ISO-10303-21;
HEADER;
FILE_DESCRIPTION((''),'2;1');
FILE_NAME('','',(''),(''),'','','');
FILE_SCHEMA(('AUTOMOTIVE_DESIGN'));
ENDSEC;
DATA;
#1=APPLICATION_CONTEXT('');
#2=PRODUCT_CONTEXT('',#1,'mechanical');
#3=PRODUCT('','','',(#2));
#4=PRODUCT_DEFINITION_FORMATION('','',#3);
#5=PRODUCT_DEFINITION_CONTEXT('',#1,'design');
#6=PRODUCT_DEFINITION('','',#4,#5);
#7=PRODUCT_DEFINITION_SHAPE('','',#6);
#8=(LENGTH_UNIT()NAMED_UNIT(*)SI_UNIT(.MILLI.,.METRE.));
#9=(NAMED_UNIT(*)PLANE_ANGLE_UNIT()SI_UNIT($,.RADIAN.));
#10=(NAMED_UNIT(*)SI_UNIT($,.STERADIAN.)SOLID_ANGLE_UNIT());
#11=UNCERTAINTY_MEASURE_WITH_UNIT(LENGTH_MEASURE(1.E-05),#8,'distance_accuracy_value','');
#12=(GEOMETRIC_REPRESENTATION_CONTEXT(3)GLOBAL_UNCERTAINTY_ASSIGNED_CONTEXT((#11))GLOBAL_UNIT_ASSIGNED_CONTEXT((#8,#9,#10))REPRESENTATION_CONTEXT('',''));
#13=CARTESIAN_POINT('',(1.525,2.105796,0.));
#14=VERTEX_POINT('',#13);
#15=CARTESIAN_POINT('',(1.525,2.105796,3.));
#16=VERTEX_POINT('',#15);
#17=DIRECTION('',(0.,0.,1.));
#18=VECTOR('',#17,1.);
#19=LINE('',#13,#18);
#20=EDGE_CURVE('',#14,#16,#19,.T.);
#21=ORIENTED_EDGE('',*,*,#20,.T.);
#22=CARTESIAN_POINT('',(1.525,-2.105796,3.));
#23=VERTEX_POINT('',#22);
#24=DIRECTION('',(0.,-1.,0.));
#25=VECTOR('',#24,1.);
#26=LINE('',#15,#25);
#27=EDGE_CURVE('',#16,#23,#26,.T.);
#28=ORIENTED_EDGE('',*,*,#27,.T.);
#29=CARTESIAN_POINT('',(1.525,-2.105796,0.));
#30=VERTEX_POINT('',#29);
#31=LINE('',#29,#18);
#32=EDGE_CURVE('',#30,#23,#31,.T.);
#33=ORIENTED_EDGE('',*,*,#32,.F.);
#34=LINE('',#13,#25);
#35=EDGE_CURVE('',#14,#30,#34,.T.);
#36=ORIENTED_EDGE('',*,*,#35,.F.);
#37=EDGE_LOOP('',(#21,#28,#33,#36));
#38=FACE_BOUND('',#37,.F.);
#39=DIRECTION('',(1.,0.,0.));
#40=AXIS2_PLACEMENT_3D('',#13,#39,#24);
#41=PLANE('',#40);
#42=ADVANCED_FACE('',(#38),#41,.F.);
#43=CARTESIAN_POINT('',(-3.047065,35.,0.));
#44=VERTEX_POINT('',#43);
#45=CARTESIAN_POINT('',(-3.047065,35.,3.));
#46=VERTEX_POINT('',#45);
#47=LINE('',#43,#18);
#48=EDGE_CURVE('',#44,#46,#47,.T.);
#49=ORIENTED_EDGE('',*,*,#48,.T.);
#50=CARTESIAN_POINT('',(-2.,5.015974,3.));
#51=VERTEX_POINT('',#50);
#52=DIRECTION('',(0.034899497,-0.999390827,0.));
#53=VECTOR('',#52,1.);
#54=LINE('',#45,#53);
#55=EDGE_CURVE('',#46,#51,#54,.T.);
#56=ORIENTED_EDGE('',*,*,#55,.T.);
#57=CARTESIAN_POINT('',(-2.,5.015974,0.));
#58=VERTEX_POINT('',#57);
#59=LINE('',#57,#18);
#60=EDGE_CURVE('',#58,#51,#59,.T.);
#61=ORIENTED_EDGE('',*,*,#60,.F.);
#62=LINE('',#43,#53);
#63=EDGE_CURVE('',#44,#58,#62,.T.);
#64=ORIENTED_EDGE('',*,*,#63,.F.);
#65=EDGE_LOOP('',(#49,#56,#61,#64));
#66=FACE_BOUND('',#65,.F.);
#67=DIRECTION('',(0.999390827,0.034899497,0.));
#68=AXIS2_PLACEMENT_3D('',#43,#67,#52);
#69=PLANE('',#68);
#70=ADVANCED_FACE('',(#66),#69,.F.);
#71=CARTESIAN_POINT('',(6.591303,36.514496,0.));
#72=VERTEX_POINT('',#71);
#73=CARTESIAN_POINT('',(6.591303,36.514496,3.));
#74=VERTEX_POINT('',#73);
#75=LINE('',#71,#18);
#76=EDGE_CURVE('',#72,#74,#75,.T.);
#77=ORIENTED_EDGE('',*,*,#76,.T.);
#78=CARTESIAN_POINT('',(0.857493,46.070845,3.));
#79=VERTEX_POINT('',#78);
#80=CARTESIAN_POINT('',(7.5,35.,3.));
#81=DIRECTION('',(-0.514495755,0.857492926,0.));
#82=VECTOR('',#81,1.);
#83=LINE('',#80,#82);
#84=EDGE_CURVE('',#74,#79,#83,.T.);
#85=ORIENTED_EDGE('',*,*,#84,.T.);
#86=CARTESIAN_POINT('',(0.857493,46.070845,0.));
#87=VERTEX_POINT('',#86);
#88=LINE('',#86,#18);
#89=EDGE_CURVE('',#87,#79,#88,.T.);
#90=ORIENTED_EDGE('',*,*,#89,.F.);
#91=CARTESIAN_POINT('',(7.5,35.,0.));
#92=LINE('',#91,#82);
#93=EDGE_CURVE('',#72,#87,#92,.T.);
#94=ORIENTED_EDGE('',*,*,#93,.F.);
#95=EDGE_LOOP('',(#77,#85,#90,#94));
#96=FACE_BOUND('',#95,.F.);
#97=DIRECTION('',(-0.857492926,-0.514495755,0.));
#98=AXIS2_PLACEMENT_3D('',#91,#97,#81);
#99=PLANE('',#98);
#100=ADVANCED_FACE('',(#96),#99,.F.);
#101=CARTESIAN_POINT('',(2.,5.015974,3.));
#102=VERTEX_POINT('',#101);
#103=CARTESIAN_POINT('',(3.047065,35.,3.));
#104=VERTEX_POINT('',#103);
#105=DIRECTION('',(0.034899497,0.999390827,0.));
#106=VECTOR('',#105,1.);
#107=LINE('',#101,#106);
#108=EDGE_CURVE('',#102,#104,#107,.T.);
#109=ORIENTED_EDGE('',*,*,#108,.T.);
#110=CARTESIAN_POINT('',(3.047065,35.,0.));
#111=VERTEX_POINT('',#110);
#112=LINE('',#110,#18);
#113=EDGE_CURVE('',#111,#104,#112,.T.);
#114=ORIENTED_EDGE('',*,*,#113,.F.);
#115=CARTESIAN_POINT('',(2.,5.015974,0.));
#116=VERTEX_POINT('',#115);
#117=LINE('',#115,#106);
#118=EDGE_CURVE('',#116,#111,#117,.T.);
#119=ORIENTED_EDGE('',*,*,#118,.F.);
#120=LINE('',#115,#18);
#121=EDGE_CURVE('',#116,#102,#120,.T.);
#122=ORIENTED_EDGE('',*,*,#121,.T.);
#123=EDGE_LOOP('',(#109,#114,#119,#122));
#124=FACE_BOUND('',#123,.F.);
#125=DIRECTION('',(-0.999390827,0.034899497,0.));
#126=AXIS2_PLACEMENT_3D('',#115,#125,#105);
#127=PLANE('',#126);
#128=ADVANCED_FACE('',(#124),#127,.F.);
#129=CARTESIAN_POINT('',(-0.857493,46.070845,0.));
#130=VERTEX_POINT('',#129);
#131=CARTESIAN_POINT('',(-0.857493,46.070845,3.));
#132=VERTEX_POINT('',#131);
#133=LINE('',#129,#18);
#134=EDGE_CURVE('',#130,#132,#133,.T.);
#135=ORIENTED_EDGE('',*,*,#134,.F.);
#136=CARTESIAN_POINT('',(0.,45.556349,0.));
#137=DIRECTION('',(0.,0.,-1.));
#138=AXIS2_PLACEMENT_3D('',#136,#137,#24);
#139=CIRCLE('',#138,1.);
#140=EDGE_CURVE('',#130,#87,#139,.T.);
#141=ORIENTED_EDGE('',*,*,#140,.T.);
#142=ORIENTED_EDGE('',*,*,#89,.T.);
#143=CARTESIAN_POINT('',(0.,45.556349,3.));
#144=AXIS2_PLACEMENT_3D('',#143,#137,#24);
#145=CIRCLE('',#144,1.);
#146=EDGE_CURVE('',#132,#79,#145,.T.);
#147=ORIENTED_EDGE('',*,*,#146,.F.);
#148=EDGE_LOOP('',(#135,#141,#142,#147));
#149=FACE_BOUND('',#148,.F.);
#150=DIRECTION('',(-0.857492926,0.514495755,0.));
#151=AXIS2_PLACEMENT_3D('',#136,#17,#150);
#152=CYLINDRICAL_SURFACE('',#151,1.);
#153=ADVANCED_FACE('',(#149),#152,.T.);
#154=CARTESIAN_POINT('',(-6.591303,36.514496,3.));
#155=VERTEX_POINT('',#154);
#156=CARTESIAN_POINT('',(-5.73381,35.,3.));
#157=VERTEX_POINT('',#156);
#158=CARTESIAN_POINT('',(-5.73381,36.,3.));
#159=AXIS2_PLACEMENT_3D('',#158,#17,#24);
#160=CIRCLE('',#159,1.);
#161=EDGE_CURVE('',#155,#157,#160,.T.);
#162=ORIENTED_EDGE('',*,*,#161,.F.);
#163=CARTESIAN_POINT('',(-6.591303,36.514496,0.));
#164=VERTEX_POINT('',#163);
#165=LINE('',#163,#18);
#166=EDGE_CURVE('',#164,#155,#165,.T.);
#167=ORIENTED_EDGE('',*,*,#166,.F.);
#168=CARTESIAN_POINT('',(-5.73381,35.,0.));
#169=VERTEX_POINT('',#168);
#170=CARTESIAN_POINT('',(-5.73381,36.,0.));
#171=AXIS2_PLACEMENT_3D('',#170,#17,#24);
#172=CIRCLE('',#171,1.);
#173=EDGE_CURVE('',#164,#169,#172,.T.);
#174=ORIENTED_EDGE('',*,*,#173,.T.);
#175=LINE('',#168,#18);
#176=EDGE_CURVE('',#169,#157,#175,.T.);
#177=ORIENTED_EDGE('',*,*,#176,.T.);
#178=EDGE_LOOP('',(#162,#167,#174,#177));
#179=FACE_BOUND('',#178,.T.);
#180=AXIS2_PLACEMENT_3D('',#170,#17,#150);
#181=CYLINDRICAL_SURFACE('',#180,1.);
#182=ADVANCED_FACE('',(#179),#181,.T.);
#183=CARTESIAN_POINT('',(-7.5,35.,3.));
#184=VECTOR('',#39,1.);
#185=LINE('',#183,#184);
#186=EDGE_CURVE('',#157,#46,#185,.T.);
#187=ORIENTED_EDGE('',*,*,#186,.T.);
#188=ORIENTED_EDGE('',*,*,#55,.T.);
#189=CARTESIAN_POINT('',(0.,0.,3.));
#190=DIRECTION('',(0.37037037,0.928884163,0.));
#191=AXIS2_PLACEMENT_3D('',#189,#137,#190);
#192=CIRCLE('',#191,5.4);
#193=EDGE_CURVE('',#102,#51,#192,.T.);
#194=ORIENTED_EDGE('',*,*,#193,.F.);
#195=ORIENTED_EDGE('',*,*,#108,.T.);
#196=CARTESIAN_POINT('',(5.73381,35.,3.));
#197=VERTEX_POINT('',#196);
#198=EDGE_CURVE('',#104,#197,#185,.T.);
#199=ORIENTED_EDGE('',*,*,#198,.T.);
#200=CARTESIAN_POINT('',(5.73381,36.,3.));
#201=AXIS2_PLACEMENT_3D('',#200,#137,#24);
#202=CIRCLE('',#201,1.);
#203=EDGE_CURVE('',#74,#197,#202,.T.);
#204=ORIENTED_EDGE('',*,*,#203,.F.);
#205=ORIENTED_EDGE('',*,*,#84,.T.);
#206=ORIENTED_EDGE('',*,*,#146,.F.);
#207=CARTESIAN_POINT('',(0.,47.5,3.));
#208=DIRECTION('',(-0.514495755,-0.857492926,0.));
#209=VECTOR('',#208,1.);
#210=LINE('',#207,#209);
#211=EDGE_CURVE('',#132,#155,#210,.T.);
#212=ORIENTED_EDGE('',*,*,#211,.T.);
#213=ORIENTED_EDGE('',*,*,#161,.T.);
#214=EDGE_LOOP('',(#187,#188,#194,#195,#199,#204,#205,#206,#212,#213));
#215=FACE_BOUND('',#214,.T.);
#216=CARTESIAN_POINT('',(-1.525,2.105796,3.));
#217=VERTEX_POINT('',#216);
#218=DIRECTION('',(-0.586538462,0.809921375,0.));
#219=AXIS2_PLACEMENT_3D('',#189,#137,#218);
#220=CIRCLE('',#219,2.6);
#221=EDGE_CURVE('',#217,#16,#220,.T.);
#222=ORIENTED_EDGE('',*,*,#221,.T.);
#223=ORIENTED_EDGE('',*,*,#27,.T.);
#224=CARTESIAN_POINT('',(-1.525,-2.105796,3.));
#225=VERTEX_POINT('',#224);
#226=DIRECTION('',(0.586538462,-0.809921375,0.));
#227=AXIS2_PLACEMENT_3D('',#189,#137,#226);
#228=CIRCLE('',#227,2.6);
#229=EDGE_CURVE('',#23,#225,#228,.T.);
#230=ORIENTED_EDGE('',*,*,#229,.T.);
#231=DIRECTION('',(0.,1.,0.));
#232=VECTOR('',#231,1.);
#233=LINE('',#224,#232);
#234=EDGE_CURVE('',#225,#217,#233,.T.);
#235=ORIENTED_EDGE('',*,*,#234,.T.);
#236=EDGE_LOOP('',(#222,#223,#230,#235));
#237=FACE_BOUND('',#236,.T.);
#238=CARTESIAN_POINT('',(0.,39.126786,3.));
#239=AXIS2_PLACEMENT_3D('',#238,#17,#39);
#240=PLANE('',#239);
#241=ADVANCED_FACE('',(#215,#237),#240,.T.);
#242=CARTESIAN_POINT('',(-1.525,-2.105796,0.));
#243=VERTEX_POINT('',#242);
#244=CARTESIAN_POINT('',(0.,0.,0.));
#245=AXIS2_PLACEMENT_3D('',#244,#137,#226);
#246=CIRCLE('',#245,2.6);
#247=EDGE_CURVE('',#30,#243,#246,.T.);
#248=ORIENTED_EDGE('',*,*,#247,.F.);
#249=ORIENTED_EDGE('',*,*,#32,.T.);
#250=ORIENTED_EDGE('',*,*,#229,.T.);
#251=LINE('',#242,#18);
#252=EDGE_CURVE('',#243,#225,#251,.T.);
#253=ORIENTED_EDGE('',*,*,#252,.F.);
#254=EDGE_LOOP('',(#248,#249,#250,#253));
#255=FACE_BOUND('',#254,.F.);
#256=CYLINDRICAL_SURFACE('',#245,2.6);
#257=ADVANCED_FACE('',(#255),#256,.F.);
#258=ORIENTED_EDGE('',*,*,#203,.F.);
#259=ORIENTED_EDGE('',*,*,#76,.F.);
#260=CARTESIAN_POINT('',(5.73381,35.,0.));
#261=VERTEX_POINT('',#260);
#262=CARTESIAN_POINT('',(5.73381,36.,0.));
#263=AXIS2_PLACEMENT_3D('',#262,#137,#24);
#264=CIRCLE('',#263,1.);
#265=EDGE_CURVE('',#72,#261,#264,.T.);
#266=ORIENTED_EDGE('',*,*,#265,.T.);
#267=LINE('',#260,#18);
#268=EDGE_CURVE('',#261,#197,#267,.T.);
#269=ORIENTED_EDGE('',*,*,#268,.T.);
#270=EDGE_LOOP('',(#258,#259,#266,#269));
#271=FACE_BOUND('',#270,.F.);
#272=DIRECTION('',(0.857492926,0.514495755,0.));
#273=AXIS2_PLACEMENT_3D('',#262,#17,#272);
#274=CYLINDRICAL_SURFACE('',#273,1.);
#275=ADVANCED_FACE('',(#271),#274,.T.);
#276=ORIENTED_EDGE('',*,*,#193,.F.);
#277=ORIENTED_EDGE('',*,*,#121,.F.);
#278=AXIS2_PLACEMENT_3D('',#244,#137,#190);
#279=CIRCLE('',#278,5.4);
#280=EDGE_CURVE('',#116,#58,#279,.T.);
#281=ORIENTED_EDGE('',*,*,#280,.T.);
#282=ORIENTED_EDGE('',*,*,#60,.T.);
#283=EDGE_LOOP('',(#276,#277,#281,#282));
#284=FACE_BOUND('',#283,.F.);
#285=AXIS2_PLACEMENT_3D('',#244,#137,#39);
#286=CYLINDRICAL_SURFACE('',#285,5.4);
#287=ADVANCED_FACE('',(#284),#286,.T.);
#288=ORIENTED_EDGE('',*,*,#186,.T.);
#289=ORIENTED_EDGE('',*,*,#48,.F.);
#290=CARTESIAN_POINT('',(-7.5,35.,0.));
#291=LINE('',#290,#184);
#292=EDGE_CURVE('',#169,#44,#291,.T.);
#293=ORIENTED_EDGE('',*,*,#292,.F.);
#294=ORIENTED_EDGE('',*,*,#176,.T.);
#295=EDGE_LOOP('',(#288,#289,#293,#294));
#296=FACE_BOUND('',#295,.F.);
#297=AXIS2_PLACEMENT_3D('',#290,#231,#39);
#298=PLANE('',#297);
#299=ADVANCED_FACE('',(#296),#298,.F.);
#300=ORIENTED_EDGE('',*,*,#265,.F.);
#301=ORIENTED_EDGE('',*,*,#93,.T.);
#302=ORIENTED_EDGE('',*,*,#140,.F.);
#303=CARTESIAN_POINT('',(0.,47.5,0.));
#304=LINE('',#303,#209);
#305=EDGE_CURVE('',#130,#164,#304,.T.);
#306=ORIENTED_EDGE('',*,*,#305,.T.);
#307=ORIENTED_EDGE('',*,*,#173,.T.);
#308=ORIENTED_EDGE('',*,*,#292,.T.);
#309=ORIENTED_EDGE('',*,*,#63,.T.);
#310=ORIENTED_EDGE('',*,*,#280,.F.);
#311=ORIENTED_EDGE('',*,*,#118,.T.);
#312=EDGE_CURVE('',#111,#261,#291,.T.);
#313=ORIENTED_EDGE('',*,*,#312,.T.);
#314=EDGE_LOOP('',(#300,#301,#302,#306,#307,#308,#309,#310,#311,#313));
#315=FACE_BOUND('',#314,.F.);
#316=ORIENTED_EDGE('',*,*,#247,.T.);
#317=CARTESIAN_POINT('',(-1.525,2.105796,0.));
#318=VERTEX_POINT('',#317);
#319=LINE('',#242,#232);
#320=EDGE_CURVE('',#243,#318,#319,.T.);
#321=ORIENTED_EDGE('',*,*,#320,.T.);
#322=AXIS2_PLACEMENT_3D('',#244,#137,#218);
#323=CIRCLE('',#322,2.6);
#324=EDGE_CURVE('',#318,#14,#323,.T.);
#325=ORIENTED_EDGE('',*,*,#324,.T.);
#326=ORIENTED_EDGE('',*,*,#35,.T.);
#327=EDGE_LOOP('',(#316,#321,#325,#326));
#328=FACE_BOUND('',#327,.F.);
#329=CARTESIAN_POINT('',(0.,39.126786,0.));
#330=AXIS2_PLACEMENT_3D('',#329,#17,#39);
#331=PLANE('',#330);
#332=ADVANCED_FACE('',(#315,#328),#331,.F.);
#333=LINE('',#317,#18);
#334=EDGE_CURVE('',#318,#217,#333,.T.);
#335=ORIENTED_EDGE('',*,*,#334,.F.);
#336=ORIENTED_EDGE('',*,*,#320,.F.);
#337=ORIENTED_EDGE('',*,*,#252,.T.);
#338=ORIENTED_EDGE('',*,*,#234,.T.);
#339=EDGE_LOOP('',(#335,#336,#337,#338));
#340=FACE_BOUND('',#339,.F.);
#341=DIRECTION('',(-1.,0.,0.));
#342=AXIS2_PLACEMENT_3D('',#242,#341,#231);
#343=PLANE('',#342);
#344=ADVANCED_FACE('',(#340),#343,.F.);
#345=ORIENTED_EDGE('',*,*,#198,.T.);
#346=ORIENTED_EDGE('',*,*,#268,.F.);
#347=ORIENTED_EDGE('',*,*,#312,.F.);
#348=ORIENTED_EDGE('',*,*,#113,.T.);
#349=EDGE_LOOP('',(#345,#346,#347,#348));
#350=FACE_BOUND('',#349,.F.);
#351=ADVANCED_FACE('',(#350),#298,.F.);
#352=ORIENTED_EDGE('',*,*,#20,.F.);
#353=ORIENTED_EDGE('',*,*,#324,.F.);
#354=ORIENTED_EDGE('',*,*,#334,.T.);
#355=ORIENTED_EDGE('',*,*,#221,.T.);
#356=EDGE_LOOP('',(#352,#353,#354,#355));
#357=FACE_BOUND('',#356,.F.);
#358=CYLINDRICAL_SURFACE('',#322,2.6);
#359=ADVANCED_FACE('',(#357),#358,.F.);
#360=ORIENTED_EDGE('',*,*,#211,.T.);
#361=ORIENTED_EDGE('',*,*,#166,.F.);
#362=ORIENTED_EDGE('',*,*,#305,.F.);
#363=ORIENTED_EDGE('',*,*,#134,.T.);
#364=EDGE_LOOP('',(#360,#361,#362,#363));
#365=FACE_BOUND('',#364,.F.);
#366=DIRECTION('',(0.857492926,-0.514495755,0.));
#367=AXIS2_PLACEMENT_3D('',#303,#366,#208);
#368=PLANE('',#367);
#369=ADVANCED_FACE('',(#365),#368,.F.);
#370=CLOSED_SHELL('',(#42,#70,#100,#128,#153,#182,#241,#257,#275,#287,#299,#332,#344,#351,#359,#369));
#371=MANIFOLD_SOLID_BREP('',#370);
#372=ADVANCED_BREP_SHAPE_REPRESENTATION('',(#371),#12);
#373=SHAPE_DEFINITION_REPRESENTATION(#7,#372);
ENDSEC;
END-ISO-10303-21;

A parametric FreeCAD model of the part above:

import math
import FreeCAD as App
import Part
import Sketcher
Q = App.Units.Quantity


def edges_at(feature, points):
    """Names of the edges that pass closest to the given points."""
    edges = feature.Shape.Edges
    near = lambda p: min(range(len(edges)), key=lambda i: edges[i].distToShape(Part.Vertex(*p))[0])
    return sorted({f"Edge{near(p) + 1}" for p in points})

doc = App.newDocument("Part")
body = doc.addObject("PartDesign::Body", "Body")

sketch1 = body.newObject("Sketcher::SketchObject", "Sketch")
sketch1.AttachmentSupport = (doc.getObject("XY_Plane"), [""])
sketch1.MapMode = "FlatFace"
sketch1.addGeometry(Part.Circle(App.Vector(0, 0, 0), App.Vector(0, 0, 1), 5.4), False)
sketch1.addGeometry(Part.ArcOfCircle(Part.Circle(App.Vector(0, 0, 0), App.Vector(0, 0, 1), 2.6), math.radians(54), math.radians(126)), False)
sketch1.addGeometry(Part.LineSegment(App.Vector(1.5, 2.1, 0), App.Vector(1.5, -2.1, 0)), False)
sketch1.addGeometry(Part.ArcOfCircle(Part.Circle(App.Vector(0, 0, 0), App.Vector(0, 0, 1), 2.6), math.radians(-126), math.radians(-54)), False)
sketch1.addGeometry(Part.LineSegment(App.Vector(-1.5, -2.1, 0), App.Vector(-1.5, 2.1, 0)), False)
sketch1.addConstraint(Sketcher.Constraint("Coincident", 1, 1, 2, 1))
sketch1.addConstraint(Sketcher.Constraint("Coincident", 2, 2, 3, 2))
sketch1.addConstraint(Sketcher.Constraint("Coincident", 3, 1, 4, 1))
sketch1.addConstraint(Sketcher.Constraint("Coincident", 4, 2, 1, 2))
sketch1.addConstraint(Sketcher.Constraint("Vertical", 2))
sketch1.addConstraint(Sketcher.Constraint("Vertical", 4))
sketch1.addConstraint(Sketcher.Constraint("Coincident", 0, 3, -1, 1))
sketch1.addConstraint(Sketcher.Constraint("Coincident", 1, 3, -1, 1))
sketch1.addConstraint(Sketcher.Constraint("Coincident", 3, 3, -1, 1))
sketch1.addConstraint(Sketcher.Constraint("Equal", 1, 3))
sketch1.addConstraint(Sketcher.Constraint("Horizontal", 2, 2, 3, 1))
sketch1.addConstraint(Sketcher.Constraint("Diameter", 0, Q("10.8 mm")))
sketch1.addConstraint(Sketcher.Constraint("Radius", 1, Q("2.6 mm")))
sketch1.addConstraint(Sketcher.Constraint("DistanceX", 3, 1, 2, 2, Q("3.05 mm")))
pad1 = body.newObject("PartDesign::Pad", "Pad")
pad1.Profile = sketch1
pad1.Length = 3

sketch2 = body.newObject("Sketcher::SketchObject", "Sketch001")
sketch2.AttachmentSupport = (doc.getObject("XY_Plane"), [""])
sketch2.MapMode = "FlatFace"
sketch2.addGeometry(Part.LineSegment(App.Vector(-2, 5, 0), App.Vector(2, 5, 0)), False)
sketch2.addGeometry(Part.LineSegment(App.Vector(2, 5, 0), App.Vector(3, 35, 0)), False)
sketch2.addGeometry(Part.LineSegment(App.Vector(3, 35, 0), App.Vector(-3, 35, 0)), False)
sketch2.addGeometry(Part.LineSegment(App.Vector(-3, 35, 0), App.Vector(-2, 5, 0)), False)
sketch2.addConstraint(Sketcher.Constraint("Coincident", 0, 2, 1, 1))
sketch2.addConstraint(Sketcher.Constraint("Coincident", 1, 2, 2, 1))
sketch2.addConstraint(Sketcher.Constraint("Coincident", 2, 2, 3, 1))
sketch2.addConstraint(Sketcher.Constraint("Coincident", 3, 2, 0, 1))
sketch2.addConstraint(Sketcher.Constraint("Horizontal", 0))
sketch2.addConstraint(Sketcher.Constraint("Horizontal", 2))
sketch2.addConstraint(Sketcher.Constraint("Equal", 1, 3))
sketch2.addConstraint(Sketcher.Constraint("DistanceX", 0, 1, 0, 2, Q("4 mm")))
sketch2.addConstraint(Sketcher.Constraint("Angle", 1, Q("88 deg")))
sketch2.addConstraint(Sketcher.Constraint("DistanceX", -1, 1, 0, 2, Q("2 mm")))
sketch2.addConstraint(Sketcher.Constraint("DistanceY", -1, 1, 1, 2, Q("35 mm")))
sketch2.addConstraint(Sketcher.Constraint("DistanceX", 2, 2, 2, 1, Q("6.09413 mm")))
pad2 = body.newObject("PartDesign::Pad", "Pad001")
pad2.Profile = sketch2
pad2.Length = 3

sketch3 = body.newObject("Sketcher::SketchObject", "Sketch002")
sketch3.AttachmentSupport = (doc.getObject("XY_Plane"), [""])
sketch3.MapMode = "FlatFace"
sketch3.addGeometry(Part.LineSegment(App.Vector(0, 48, 0), App.Vector(-8, 35, 0)), False)
sketch3.addGeometry(Part.LineSegment(App.Vector(-8, 35, 0), App.Vector(8, 35, 0)), False)
sketch3.addGeometry(Part.LineSegment(App.Vector(8, 35, 0), App.Vector(0, 48, 0)), False)
sketch3.addConstraint(Sketcher.Constraint("Coincident", 0, 2, 1, 1))
sketch3.addConstraint(Sketcher.Constraint("Coincident", 1, 2, 2, 1))
sketch3.addConstraint(Sketcher.Constraint("Coincident", 2, 2, 0, 1))
sketch3.addConstraint(Sketcher.Constraint("Horizontal", 1))
sketch3.addConstraint(Sketcher.Constraint("PointOnObject", 2, 2, -2))
sketch3.addConstraint(Sketcher.Constraint("Equal", 0, 2))
sketch3.addConstraint(Sketcher.Constraint("DistanceX", 1, 1, 1, 2, Q("15 mm")))
sketch3.addConstraint(Sketcher.Constraint("DistanceY", -1, 1, 0, 2, Q("35 mm")))
sketch3.addConstraint(Sketcher.Constraint("DistanceY", -1, 1, 2, 2, Q("47.5 mm")))
pad3 = body.newObject("PartDesign::Pad", "Pad002")
pad3.Profile = sketch3
pad3.Length = 3
doc.recompute()

fillet = body.newObject("PartDesign::Fillet", "Fillet")
fillet.Base = (pad3, edges_at(pad3, [(0, 47.5, 1.5), (-7.5, 35, 1.5), (7.5, 35, 1.5)]))
fillet.Radius = 1

doc.recompute()
